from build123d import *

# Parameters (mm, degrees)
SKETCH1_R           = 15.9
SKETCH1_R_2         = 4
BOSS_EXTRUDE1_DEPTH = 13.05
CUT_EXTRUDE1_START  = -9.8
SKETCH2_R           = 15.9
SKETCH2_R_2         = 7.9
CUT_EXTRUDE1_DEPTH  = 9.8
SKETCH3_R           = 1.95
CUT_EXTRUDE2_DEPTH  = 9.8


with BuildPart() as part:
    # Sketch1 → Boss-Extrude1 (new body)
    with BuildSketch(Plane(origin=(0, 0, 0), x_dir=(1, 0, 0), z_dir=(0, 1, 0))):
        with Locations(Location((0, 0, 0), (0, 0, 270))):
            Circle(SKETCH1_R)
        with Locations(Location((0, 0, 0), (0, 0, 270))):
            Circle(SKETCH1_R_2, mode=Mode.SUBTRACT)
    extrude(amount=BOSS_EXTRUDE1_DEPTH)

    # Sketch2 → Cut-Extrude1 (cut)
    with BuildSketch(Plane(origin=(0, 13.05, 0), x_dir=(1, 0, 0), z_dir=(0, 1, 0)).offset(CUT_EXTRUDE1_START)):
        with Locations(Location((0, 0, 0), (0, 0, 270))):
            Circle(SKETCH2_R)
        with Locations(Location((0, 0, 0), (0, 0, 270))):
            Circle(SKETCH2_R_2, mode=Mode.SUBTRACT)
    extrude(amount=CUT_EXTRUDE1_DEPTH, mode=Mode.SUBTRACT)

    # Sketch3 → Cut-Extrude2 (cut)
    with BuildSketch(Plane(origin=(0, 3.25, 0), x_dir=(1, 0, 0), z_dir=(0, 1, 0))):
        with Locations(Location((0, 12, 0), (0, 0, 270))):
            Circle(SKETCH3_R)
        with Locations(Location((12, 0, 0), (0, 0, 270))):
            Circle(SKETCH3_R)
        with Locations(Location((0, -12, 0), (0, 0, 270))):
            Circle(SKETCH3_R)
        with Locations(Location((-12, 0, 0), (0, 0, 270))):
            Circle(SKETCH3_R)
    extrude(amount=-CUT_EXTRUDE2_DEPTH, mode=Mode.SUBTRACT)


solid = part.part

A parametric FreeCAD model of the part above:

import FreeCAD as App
import Part
import Sketcher
from FreeCAD import Vector
Q = App.Units.Quantity

doc = App.newDocument("Part")
body = doc.addObject("PartDesign::Body", "Body")

sketch1 = body.newObject("Sketcher::SketchObject", "Sketch")
sketch1.AttachmentSupport = (doc.getObject("XZ_Plane"), [""])
sketch1.MapMode = "FlatFace"
sketch1.addGeometry(Part.Circle(Vector(0, 0, 0), Vector(0, 0, 1), 15.9), False)
sketch1.addGeometry(Part.Circle(Vector(0, 0, 0), Vector(0, 0, 1), 4), False)
sketch1.addConstraint(Sketcher.Constraint("Coincident", 0, 3, -1, 1))
sketch1.addConstraint(Sketcher.Constraint("Coincident", 1, 3, -1, 1))
sketch1.addConstraint(Sketcher.Constraint("Diameter", 1, Q("8 mm")))
sketch1.addConstraint(Sketcher.Constraint("Diameter", 0, Q("31.8 mm")))
pad1 = body.newObject("PartDesign::Pad", "Pad")
pad1.Profile = sketch1
pad1.Length = 13.05
pad1.Reversed = True

sketch2 = body.newObject("Sketcher::SketchObject", "Sketch001")
sketch2.AttachmentSupport = (doc.getObject("XZ_Plane"), [""])
sketch2.MapMode = "FlatFace"
sketch2.AttachmentOffset = App.Placement(Vector(0, 0, -3.25), App.Rotation())
sketch2.addGeometry(Part.Circle(Vector(0, 0, 0), Vector(0, 0, 1), 16), False)
sketch2.addGeometry(Part.Circle(Vector(0, 0, 0), Vector(0, 0, 1), 8), False)
sketch2.addConstraint(Sketcher.Constraint("Coincident", 0, 3, -1, 1))
sketch2.addConstraint(Sketcher.Constraint("Coincident", 1, 3, -1, 1))
sketch2.addConstraint(Sketcher.Constraint("Diameter", 0, Q("31.8 mm")))
sketch2.addConstraint(Sketcher.Constraint("Diameter", 1, Q("15.8 mm")))
pocket1 = body.newObject("PartDesign::Pocket", "Pocket")
pocket1.Profile = sketch2
pocket1.Length = 9.8

sketch3 = body.newObject("Sketcher::SketchObject", "Sketch002")
sketch3.AttachmentSupport = (doc.getObject("XZ_Plane"), [""])
sketch3.MapMode = "FlatFace"
sketch3.AttachmentOffset = App.Placement(Vector(0, 0, -3.25), App.Rotation())
sketch3.addGeometry(Part.Circle(Vector(0, -12, 0), Vector(0, 0, 1), 1.9), False)
sketch3.addGeometry(Part.Circle(Vector(12, 0, 0), Vector(0, 0, 1), 1.9), False)
sketch3.addGeometry(Part.Circle(Vector(0, 12, 0), Vector(0, 0, 1), 1.9), False)
sketch3.addGeometry(Part.Circle(Vector(-12, 0, 0), Vector(0, 0, 1), 1.9), False)
sketch3.addConstraint(Sketcher.Constraint("Equal", 0, 1))
sketch3.addConstraint(Sketcher.Constraint("Equal", 1, 2))
sketch3.addConstraint(Sketcher.Constraint("Equal", 2, 3))
sketch3.addConstraint(Sketcher.Constraint("Symmetric", 0, 3, 2, 3, -1, 1))
sketch3.addConstraint(Sketcher.Constraint("Symmetric", 1, 3, 3, 3, -1, 1))
sketch3.addConstraint(Sketcher.Constraint("PointOnObject", 0, 3, -2))
sketch3.addConstraint(Sketcher.Constraint("PointOnObject", 1, 3, -1))
sketch3.addConstraint(Sketcher.Constraint("Diameter", 0, Q("3.9 mm")))
sketch3.addConstraint(Sketcher.Constraint("DistanceY", 0, 3, -1, 1, Q("12 mm")))
sketch3.addConstraint(Sketcher.Constraint("DistanceX", -1, 1, 1, 3, Q("12 mm")))
pocket2 = body.newObject("PartDesign::Pocket", "Pocket001")
pocket2.Profile = sketch3
pocket2.Length = 9.8
pocket2.Reversed = True

doc.recompute()
